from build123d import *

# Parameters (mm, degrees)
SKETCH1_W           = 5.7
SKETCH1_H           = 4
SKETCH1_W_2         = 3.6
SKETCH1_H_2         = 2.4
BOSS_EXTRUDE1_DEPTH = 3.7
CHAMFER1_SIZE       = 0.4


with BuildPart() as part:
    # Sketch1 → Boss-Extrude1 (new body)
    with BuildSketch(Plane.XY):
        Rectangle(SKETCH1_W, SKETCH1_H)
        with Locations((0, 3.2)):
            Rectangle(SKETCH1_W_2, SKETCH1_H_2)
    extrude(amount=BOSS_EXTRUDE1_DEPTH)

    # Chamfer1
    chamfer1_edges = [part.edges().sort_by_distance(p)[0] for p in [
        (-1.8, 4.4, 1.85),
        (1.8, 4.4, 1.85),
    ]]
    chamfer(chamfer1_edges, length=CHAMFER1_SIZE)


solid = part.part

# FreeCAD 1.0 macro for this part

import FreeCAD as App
import Part
import Sketcher

V = App.Vector
Q = App.Units.Quantity


def edges_at(feature, points):
    """Names of the edges that pass closest to the given points."""
    edges = feature.Shape.Edges
    near = lambda p: min(range(len(edges)), key=lambda i: edges[i].distToShape(Part.Vertex(*p))[0])
    return sorted({f"Edge{near(p) + 1}" for p in points})


def add_polygon(sketch, points):
    """Adds a closed chain of lines whose ends are joined by coincident constraints."""
    first, n = sketch.GeometryCount, len(points)
    for a, b in zip(points, points[1:] + points[:1]):
        sketch.addGeometry(Part.LineSegment(App.Vector(*a, 0), App.Vector(*b, 0)), False)
    for i in range(n):
        sketch.addConstraint(Sketcher.Constraint("Coincident", first + i, 2, first + (i + 1) % n, 1))

doc = App.newDocument("Part")
body = doc.addObject("PartDesign::Body", "Body")

# Sketch on XY plane
sketch1 = doc.addObject("Sketcher::SketchObject", "Sketch")
body.addObject(sketch1)
sketch1.AttachmentSupport = (doc.XY_Plane, [""])
sketch1.MapMode = "FlatFace"
add_polygon(sketch1, [(-2.9, 2), (-2.9, -2), (2.9, -2), (2.9, 2), (1.8, 2), (1.8, 4.4), (-1.8, 4.4), (-1.8, 2)])  # lines 0-7
sketch1.addConstraint(Sketcher.Constraint("Vertical", 0))
sketch1.addConstraint(Sketcher.Constraint("Horizontal", 1))
sketch1.addConstraint(Sketcher.Constraint("Vertical", 2))
sketch1.addConstraint(Sketcher.Constraint("Horizontal", 3))
sketch1.addConstraint(Sketcher.Constraint("Vertical", 4))
sketch1.addConstraint(Sketcher.Constraint("Horizontal", 5))
sketch1.addConstraint(Sketcher.Constraint("Vertical", 6))
sketch1.addConstraint(Sketcher.Constraint("Horizontal", 7))
sketch1.addConstraint(Sketcher.Constraint("Symmetric", 0, 2, 2, 2, -1, 1))
sketch1.addConstraint(Sketcher.Constraint("Symmetric", 3, 2, 6, 2, -2))
sketch1.addConstraint(Sketcher.Constraint("DistanceY", 0, 2, 0, 1, Q("4 mm")))
sketch1.addConstraint(Sketcher.Constraint("DistanceX", 1, 1, 1, 2, Q("5.7 mm")))
sketch1.addConstraint(Sketcher.Constraint("DistanceX", 5, 2, 5, 1, Q("3.6 mm")))
sketch1.addConstraint(Sketcher.Constraint("DistanceY", 4, 1, 4, 2, Q("2.4 mm")))
pad1 = doc.addObject("PartDesign::Pad", "Pad")
body.addObject(pad1)
pad1.Profile = sketch1
pad1.Length = 3.7
doc.recompute()

chamfer = doc.addObject("PartDesign::Chamfer", "Chamfer")
body.addObject(chamfer)
chamfer.Base = (pad1, edges_at(pad1, [(-1.8, 4.4, 1.85), (1.8, 4.4, 1.85)]))
chamfer.Size = 0.4

doc.recompute()
